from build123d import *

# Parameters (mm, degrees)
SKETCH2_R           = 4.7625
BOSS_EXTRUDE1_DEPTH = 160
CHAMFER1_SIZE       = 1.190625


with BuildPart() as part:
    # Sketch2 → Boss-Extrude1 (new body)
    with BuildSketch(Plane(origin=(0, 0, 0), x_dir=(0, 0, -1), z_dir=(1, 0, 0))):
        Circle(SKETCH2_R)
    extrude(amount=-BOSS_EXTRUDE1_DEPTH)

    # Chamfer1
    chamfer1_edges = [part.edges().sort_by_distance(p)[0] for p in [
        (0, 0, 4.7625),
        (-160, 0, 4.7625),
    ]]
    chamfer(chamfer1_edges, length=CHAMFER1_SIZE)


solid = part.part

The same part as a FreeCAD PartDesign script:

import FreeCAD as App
import Part
import Sketcher

V = App.Vector
Q = App.Units.Quantity


def edges_at(feature, points):
    """Names of the edges that pass closest to the given points."""
    edges = feature.Shape.Edges
    near = lambda p: min(range(len(edges)), key=lambda i: edges[i].distToShape(Part.Vertex(*p))[0])
    return sorted({f"Edge{near(p) + 1}" for p in points})

doc = App.newDocument("Part")
body = doc.addObject("PartDesign::Body", "Body")

sketch1 = body.newObject("Sketcher::SketchObject", "Sketch")
sketch1.AttachmentSupport = (doc.getObject("YZ_Plane"), [""])
sketch1.MapMode = "FlatFace"
sketch1.addGeometry(Part.Circle(V(0, 0, 0), V(0, 0, 1), 4.8), False)
sketch1.addConstraint([
    Sketcher.Constraint("Coincident", 0, 3, -1, 1),
    Sketcher.Constraint("Diameter", 0, Q("0.375 in")),
])
pad1 = body.newObject("PartDesign::Pad", "Pad")
pad1.Profile = sketch1
pad1.Length = 160
pad1.Reversed = True
doc.recompute()

chamfer = body.newObject("PartDesign::Chamfer", "Chamfer")
chamfer.Base = (pad1, edges_at(pad1, [(0, 0, 4.763), (-160, 0, 4.763)]))
chamfer.Size = Q("0.046875 in")

doc.recompute()
